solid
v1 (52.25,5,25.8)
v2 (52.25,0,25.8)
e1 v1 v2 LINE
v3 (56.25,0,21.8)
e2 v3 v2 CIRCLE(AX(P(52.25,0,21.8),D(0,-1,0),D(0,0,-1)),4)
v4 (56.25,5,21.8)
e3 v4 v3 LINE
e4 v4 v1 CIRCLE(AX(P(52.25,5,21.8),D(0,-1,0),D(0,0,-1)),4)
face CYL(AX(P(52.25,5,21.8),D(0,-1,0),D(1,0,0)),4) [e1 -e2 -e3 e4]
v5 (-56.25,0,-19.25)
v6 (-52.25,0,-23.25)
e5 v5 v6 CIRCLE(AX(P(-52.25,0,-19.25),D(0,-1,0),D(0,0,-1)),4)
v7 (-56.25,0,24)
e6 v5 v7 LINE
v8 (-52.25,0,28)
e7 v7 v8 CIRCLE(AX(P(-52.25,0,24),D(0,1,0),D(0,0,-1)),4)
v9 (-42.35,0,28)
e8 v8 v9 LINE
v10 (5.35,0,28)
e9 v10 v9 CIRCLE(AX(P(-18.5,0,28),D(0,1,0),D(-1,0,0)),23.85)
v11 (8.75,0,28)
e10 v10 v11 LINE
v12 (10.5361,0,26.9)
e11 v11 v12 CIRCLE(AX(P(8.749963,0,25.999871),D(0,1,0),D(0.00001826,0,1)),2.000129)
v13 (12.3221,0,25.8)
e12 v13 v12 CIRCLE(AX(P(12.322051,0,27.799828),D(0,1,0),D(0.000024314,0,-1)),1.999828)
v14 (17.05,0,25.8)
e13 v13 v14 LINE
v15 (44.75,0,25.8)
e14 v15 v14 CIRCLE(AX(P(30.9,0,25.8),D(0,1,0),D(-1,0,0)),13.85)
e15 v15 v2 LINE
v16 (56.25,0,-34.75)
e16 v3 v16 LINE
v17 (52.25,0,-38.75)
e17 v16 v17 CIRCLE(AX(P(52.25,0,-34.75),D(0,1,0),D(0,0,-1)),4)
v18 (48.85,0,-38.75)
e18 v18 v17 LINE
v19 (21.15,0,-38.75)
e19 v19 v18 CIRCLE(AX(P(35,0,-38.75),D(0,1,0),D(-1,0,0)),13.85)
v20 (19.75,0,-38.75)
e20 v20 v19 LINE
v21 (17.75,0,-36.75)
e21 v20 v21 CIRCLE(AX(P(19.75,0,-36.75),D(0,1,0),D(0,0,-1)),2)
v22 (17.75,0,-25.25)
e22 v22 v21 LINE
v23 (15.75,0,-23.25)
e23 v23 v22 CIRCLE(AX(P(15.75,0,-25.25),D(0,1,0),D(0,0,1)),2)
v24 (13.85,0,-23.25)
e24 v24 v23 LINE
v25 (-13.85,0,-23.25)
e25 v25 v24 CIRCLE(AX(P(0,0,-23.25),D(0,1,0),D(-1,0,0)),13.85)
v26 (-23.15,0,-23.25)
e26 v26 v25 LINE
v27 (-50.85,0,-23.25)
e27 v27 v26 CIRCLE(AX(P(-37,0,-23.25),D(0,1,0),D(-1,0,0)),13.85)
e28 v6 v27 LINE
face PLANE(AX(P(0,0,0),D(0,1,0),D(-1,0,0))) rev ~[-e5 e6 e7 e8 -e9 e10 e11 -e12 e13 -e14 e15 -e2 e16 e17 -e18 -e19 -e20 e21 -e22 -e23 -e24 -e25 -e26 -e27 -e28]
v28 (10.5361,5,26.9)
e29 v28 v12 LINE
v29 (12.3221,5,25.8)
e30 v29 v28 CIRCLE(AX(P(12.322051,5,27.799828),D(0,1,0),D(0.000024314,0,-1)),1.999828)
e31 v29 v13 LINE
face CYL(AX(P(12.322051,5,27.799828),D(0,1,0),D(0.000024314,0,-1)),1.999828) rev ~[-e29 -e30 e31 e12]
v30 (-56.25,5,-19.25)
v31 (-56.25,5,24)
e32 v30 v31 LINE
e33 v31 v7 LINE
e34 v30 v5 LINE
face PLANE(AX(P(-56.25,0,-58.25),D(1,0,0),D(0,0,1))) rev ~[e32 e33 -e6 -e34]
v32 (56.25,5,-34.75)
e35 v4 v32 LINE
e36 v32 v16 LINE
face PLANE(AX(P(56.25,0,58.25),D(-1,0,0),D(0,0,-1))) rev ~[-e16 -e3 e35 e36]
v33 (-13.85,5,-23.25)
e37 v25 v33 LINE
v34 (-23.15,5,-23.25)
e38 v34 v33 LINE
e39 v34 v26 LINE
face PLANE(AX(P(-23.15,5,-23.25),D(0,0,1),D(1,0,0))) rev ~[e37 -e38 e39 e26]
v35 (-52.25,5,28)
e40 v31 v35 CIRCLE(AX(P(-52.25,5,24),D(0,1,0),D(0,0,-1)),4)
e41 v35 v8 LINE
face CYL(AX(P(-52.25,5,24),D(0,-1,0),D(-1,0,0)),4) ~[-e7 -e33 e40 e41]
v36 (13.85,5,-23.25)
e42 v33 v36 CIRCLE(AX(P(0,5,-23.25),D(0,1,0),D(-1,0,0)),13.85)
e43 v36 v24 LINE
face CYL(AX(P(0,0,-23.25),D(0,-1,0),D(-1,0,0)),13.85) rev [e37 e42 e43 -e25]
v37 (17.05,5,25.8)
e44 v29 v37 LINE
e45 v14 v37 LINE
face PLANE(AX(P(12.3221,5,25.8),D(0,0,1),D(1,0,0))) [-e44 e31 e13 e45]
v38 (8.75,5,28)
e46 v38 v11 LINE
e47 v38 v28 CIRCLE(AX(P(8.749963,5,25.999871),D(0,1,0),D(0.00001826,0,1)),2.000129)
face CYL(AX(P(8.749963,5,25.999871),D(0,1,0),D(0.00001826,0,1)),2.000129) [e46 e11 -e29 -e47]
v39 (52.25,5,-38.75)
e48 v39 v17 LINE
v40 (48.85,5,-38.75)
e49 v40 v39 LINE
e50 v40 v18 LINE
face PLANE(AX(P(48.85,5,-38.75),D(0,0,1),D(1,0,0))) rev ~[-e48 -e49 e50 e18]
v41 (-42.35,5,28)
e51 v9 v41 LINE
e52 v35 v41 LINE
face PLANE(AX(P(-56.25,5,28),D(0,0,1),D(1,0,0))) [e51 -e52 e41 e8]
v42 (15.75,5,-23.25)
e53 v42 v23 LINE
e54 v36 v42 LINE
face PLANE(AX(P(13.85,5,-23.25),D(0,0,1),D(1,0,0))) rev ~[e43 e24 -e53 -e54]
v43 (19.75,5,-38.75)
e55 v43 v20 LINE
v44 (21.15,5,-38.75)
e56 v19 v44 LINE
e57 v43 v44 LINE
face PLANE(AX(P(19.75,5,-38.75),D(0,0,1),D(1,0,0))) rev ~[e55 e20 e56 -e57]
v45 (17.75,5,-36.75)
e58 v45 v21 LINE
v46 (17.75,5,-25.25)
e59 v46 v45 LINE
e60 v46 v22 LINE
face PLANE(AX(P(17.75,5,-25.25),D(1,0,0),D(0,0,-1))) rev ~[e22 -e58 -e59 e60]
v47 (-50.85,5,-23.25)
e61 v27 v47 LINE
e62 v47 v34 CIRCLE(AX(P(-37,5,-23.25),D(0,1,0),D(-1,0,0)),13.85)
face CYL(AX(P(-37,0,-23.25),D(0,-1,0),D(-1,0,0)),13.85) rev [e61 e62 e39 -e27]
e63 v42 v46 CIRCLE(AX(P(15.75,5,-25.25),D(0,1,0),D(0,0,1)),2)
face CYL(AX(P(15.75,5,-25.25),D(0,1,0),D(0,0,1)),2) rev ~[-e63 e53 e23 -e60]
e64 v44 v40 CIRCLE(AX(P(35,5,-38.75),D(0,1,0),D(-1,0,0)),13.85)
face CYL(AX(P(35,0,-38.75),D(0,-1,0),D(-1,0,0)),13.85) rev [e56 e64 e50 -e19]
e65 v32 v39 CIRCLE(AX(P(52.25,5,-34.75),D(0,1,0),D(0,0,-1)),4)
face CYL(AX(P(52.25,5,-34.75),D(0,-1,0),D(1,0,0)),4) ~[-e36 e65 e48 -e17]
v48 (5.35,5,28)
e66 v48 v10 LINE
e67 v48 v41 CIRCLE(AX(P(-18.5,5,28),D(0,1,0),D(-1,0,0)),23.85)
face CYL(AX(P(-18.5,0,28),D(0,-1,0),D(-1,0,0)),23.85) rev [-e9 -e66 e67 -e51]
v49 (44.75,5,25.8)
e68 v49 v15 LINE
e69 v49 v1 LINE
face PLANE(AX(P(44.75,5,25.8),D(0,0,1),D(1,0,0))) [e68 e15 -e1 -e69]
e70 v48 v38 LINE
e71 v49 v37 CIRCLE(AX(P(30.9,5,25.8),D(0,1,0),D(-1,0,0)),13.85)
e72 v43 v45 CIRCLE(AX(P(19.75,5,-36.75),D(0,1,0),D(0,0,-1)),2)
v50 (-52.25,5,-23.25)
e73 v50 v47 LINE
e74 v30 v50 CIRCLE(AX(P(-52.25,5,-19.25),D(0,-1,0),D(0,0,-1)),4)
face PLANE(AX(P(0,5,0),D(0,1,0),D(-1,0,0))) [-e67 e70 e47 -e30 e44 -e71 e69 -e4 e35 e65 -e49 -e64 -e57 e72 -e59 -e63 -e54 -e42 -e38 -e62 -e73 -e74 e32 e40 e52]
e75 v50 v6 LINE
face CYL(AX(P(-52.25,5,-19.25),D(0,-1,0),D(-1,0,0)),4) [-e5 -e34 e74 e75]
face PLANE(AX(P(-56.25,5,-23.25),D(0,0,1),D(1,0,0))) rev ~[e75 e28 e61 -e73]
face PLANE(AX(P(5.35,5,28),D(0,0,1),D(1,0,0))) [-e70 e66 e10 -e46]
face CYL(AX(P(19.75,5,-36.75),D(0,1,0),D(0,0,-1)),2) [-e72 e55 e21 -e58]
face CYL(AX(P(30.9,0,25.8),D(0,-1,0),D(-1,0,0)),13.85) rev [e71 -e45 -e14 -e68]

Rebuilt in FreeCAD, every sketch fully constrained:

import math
import FreeCAD as App
import Part
import Sketcher
from FreeCAD import Vector


def edges_at(feature, points):
    """Names of the edges that pass closest to the given points."""
    edges = feature.Shape.Edges
    near = lambda p: min(range(len(edges)), key=lambda i: edges[i].distToShape(Part.Vertex(*p))[0])
    return sorted({f"Edge{near(p) + 1}" for p in points})

doc = App.newDocument("Part")
body = doc.addObject("PartDesign::Body", "Body")

# Sketch on XZ plane
sketch1 = doc.addObject("Sketcher::SketchObject", "Sketch")
body.addObject(sketch1)
sketch1.AttachmentSupport = (doc.XZ_Plane, [""])
sketch1.MapMode = "FlatFace"
sketch1.addGeometry(Part.LineSegment(Vector(-56.25, -58.25, 0), Vector(-56.25, 58.25, 0)), False)
sketch1.addGeometry(Part.LineSegment(Vector(-56.25, 58.25, 0), Vector(56.25, 58.25, 0)), False)
sketch1.addGeometry(Part.LineSegment(Vector(56.25, 58.25, 0), Vector(56.25, -58.25, 0)), False)
sketch1.addGeometry(Part.LineSegment(Vector(56.25, -58.25, 0), Vector(-56.25, -58.25, 0)), False)
sketch1.addGeometry(Part.Circle(Vector(35, -38.75, 0), Vector(0, 0, 1), 13.85), False)
sketch1.addGeometry(Part.Circle(Vector(0, -23.25, 0), Vector(0, 0, 1), 13.85), False)
sketch1.addGeometry(Part.Circle(Vector(-37, -23.25, 0), Vector(0, 0, 1), 13.85), False)
sketch1.addGeometry(Part.Circle(Vector(30.9, 25.8, 0), Vector(0, 0, 1), 13.85), False)
sketch1.addGeometry(Part.Circle(Vector(-18.5, 28, 0), Vector(0, 0, 1), 23.85), False)
sketch1.addConstraint(Sketcher.Constraint("Coincident", 0, 2, 1, 1))
sketch1.addConstraint(Sketcher.Constraint("Coincident", 1, 2, 2, 1))
sketch1.addConstraint(Sketcher.Constraint("Coincident", 2, 2, 3, 1))
sketch1.addConstraint(Sketcher.Constraint("Coincident", 3, 2, 0, 1))
sketch1.addConstraint(Sketcher.Constraint("Vertical", 0))
sketch1.addConstraint(Sketcher.Constraint("Horizontal", 1))
sketch1.addConstraint(Sketcher.Constraint("Vertical", 2))
sketch1.addConstraint(Sketcher.Constraint("Horizontal", 3))
sketch1.addConstraint(Sketcher.Constraint("Equal", 4, 5))
sketch1.addConstraint(Sketcher.Constraint("Equal", 5, 6))
sketch1.addConstraint(Sketcher.Constraint("Equal", 6, 7))
sketch1.addConstraint(Sketcher.Constraint("Symmetric", 0, 2, 2, 2, -1, 1))
sketch1.addConstraint(Sketcher.Constraint("PointOnObject", 5, 3, -2))
sketch1.addConstraint(Sketcher.Constraint("Horizontal", 5, 3, 6, 3))
sketch1.addConstraint(Sketcher.Constraint("Diameter", 4, 27.7))
sketch1.addConstraint(Sketcher.Constraint("Diameter", 8, 47.7))
sketch1.addConstraint(Sketcher.Constraint("DistanceX", 1, 1, 1, 2, 112.5))
sketch1.addConstraint(Sketcher.Constraint("DistanceY", 0, 1, 0, 2, 116.5))
sketch1.addConstraint(Sketcher.Constraint("DistanceX", -1, 1, 4, 3, 35.0))
sketch1.addConstraint(Sketcher.Constraint("DistanceX", 6, 3, -1, 1, 37.0))
sketch1.addConstraint(Sketcher.Constraint("DistanceY", -1, 1, 8, 3, 28.0))
sketch1.addConstraint(Sketcher.Constraint("DistanceY", 2, 2, 5, 3, 35.0))
sketch1.addConstraint(Sketcher.Constraint("DistanceX", -1, 1, 7, 3, 30.9))
sketch1.addConstraint(Sketcher.Constraint("DistanceY", -1, 1, 7, 3, 25.8))
sketch1.addConstraint(Sketcher.Constraint("DistanceX", 8, 3, -1, 1, 18.5))
sketch1.addConstraint(Sketcher.Constraint("DistanceY", 2, 2, 4, 3, 19.5))
pad1 = doc.addObject("PartDesign::Pad", "Pad")
body.addObject(pad1)
pad1.Profile = sketch1
pad1.Length = 5
pad1.Reversed = True

# Sketch on XZ plane
sketch2 = doc.addObject("Sketcher::SketchObject", "Sketch001")
body.addObject(sketch2)
sketch2.AttachmentSupport = (doc.XZ_Plane, [""])
sketch2.MapMode = "FlatFace"
sketch2.AttachmentOffset = App.Placement(Vector(0, 0, -5), App.Rotation())
sketch2.addGeometry(Part.LineSegment(Vector(8.75, 28, 0), Vector(5.35, 28, 0)), False)
sketch2.addGeometry(Part.ArcOfCircle(Part.Circle(Vector(-18.5, 28, 0), Vector(0, 0, 1), 23.85), math.radians(0), math.radians(180)), False)
sketch2.addGeometry(Part.LineSegment(Vector(-42.35, 28, 0), Vector(-56.25, 28, 0)), False)
sketch2.addGeometry(Part.LineSegment(Vector(-56.25, 28, 0), Vector(-56.25, 58.25, 0)), False)
sketch2.addGeometry(Part.LineSegment(Vector(-56.25, 58.25, 0), Vector(56.25, 58.25, 0)), False)
sketch2.addGeometry(Part.LineSegment(Vector(56.25, 58.25, 0), Vector(56.25, 25.8, 0)), False)
sketch2.addGeometry(Part.LineSegment(Vector(56.25, 25.8, 0), Vector(44.75, 25.8, 0)), False)
sketch2.addGeometry(Part.ArcOfCircle(Part.Circle(Vector(30.9, 25.8, 0), Vector(0, 0, 1), 13.85), math.radians(0), math.radians(180)), False)
sketch2.addGeometry(Part.LineSegment(Vector(17.05, 25.8, 0), Vector(12.3221, 25.8, 0)), False)
sketch2.addGeometry(Part.ArcOfCircle(Part.Circle(Vector(12.3221, 27.8, 0), Vector(0, 0, 1), 2), math.radians(-153.25558), math.radians(-90)), False)
sketch2.addGeometry(Part.ArcOfCircle(Part.Circle(Vector(8.75, 26, 0), Vector(0, 0, 1), 2), math.radians(26.743131), math.radians(90)), False)
sketch2.addConstraint(Sketcher.Constraint("Coincident", 0, 2, 1, 1))
sketch2.addConstraint(Sketcher.Constraint("Coincident", 1, 2, 2, 1))
sketch2.addConstraint(Sketcher.Constraint("Coincident", 2, 2, 3, 1))
sketch2.addConstraint(Sketcher.Constraint("Coincident", 3, 2, 4, 1))
sketch2.addConstraint(Sketcher.Constraint("Coincident", 4, 2, 5, 1))
sketch2.addConstraint(Sketcher.Constraint("Coincident", 5, 2, 6, 1))
sketch2.addConstraint(Sketcher.Constraint("Coincident", 6, 2, 7, 1))
sketch2.addConstraint(Sketcher.Constraint("Coincident", 7, 2, 8, 1))
sketch2.addConstraint(Sketcher.Constraint("Tangent", 8, 2, 9, 2))
sketch2.addConstraint(Sketcher.Constraint("Tangent", 9, 1, 10, 1))
sketch2.addConstraint(Sketcher.Constraint("Tangent", 10, 2, 0, 1))
sketch2.addConstraint(Sketcher.Constraint("Horizontal", 0))
sketch2.addConstraint(Sketcher.Constraint("Horizontal", 2))
sketch2.addConstraint(Sketcher.Constraint("Vertical", 3))
sketch2.addConstraint(Sketcher.Constraint("Horizontal", 4))
sketch2.addConstraint(Sketcher.Constraint("Vertical", 5))
sketch2.addConstraint(Sketcher.Constraint("Horizontal", 6))
sketch2.addConstraint(Sketcher.Constraint("Horizontal", 8))
sketch2.addConstraint(Sketcher.Constraint("Equal", 9, 10))
sketch2.addConstraint(Sketcher.Constraint("Horizontal", 1, 3, 0, 2))
sketch2.addConstraint(Sketcher.Constraint("Horizontal", 0, 2, 1, 2))
sketch2.addConstraint(Sketcher.Constraint("Horizontal", 7, 3, 5, 2))
sketch2.addConstraint(Sketcher.Constraint("Horizontal", 6, 2, 7, 2))
sketch2.addConstraint(Sketcher.Constraint("Radius", 9, 2.0))
sketch2.addConstraint(Sketcher.Constraint("Radius", 1, 23.85))
sketch2.addConstraint(Sketcher.Constraint("Radius", 7, 13.85))
sketch2.addConstraint(Sketcher.Constraint("DistanceX", 0, 2, 0, 1, 3.4))
sketch2.addConstraint(Sketcher.Constraint("DistanceX", 2, 2, 2, 1, 13.9))
sketch2.addConstraint(Sketcher.Constraint("DistanceX", 4, 1, 4, 2, 112.5))
sketch2.addConstraint(Sketcher.Constraint("DistanceX", 6, 2, 6, 1, 11.5))
sketch2.addConstraint(Sketcher.Constraint("DistanceY", -1, 1, 1, 3, 28.0))
sketch2.addConstraint(Sketcher.Constraint("DistanceY", 3, 1, 3, 2, 30.25))
sketch2.addConstraint(Sketcher.Constraint("DistanceY", 5, 2, 5, 1, 32.45))
sketch2.addConstraint(Sketcher.Constraint("DistanceX", 1, 3, -1, 1, 18.5))
pocket1 = doc.addObject("PartDesign::Pocket", "Pocket")
body.addObject(pocket1)
pocket1.Profile = sketch2
pocket1.Length = 10
pocket1.Reversed = True

# Sketch on XZ plane
sketch3 = doc.addObject("Sketcher::SketchObject", "Sketch002")
body.addObject(sketch3)
sketch3.AttachmentSupport = (doc.XZ_Plane, [""])
sketch3.MapMode = "FlatFace"
sketch3.AttachmentOffset = App.Placement(Vector(0, 0, -5), App.Rotation())
sketch3.addGeometry(Part.LineSegment(Vector(56.25, -58.25, 0), Vector(-56.25, -58.25, 0)), False)
sketch3.addGeometry(Part.LineSegment(Vector(-56.25, -58.25, 0), Vector(-56.25, -23.25, 0)), False)
sketch3.addGeometry(Part.LineSegment(Vector(-56.25, -23.25, 0), Vector(-50.85, -23.25, 0)), False)
sketch3.addGeometry(Part.ArcOfCircle(Part.Circle(Vector(-37, -23.25, 0), Vector(0, 0, 1), 13.85), math.radians(180), math.radians(360)), False)
sketch3.addGeometry(Part.LineSegment(Vector(-23.15, -23.25, 0), Vector(-13.85, -23.25, 0)), False)
sketch3.addGeometry(Part.ArcOfCircle(Part.Circle(Vector(0, -23.25, 0), Vector(0, 0, 1), 13.85), math.radians(180), math.radians(360)), False)
sketch3.addGeometry(Part.LineSegment(Vector(13.85, -23.25, 0), Vector(15.75, -23.25, 0)), False)
sketch3.addGeometry(Part.ArcOfCircle(Part.Circle(Vector(15.75, -25.25, 0), Vector(0, 0, 1), 2), math.radians(0), math.radians(90)), False)
sketch3.addGeometry(Part.LineSegment(Vector(17.75, -25.25, 0), Vector(17.75, -36.75, 0)), False)
sketch3.addGeometry(Part.ArcOfCircle(Part.Circle(Vector(19.75, -36.75, 0), Vector(0, 0, 1), 2), math.radians(180), math.radians(270)), False)
sketch3.addGeometry(Part.LineSegment(Vector(19.75, -38.75, 0), Vector(21.15, -38.75, 0)), False)
sketch3.addGeometry(Part.ArcOfCircle(Part.Circle(Vector(35, -38.75, 0), Vector(0, 0, 1), 13.85), math.radians(180), math.radians(360)), False)
sketch3.addGeometry(Part.LineSegment(Vector(48.85, -38.75, 0), Vector(56.25, -38.75, 0)), False)
sketch3.addGeometry(Part.LineSegment(Vector(56.25, -38.75, 0), Vector(56.25, -58.25, 0)), False)
sketch3.addConstraint(Sketcher.Constraint("Coincident", 0, 2, 1, 1))
sketch3.addConstraint(Sketcher.Constraint("Coincident", 1, 2, 2, 1))
sketch3.addConstraint(Sketcher.Constraint("Coincident", 2, 2, 3, 1))
sketch3.addConstraint(Sketcher.Constraint("Coincident", 3, 2, 4, 1))
sketch3.addConstraint(Sketcher.Constraint("Coincident", 4, 2, 5, 1))
sketch3.addConstraint(Sketcher.Constraint("Coincident", 5, 2, 6, 1))
sketch3.addConstraint(Sketcher.Constraint("Tangent", 6, 2, 7, 2))
sketch3.addConstraint(Sketcher.Constraint("Tangent", 7, 1, 8, 1))
sketch3.addConstraint(Sketcher.Constraint("Tangent", 8, 2, 9, 1))
sketch3.addConstraint(Sketcher.Constraint("Tangent", 9, 2, 10, 1))
sketch3.addConstraint(Sketcher.Constraint("Coincident", 10, 2, 11, 1))
sketch3.addConstraint(Sketcher.Constraint("Coincident", 11, 2, 12, 1))
sketch3.addConstraint(Sketcher.Constraint("Coincident", 12, 2, 13, 1))
sketch3.addConstraint(Sketcher.Constraint("Coincident", 13, 2, 0, 1))
sketch3.addConstraint(Sketcher.Constraint("Horizontal", 0))
sketch3.addConstraint(Sketcher.Constraint("Vertical", 1))
sketch3.addConstraint(Sketcher.Constraint("Horizontal", 2))
sketch3.addConstraint(Sketcher.Constraint("Horizontal", 4))
sketch3.addConstraint(Sketcher.Constraint("Horizontal", 6))
sketch3.addConstraint(Sketcher.Constraint("Vertical", 8))
sketch3.addConstraint(Sketcher.Constraint("Horizontal", 10))
sketch3.addConstraint(Sketcher.Constraint("Horizontal", 12))
sketch3.addConstraint(Sketcher.Constraint("Vertical", 13))
sketch3.addConstraint(Sketcher.Constraint("Equal", 3, 5))
sketch3.addConstraint(Sketcher.Constraint("Equal", 7, 9))
sketch3.addConstraint(Sketcher.Constraint("Equal", 5, 11))
sketch3.addConstraint(Sketcher.Constraint("Symmetric", 4, 2, 5, 2, -2))
sketch3.addConstraint(Sketcher.Constraint("Horizontal", 3, 3, 5, 3))
sketch3.addConstraint(Sketcher.Constraint("Horizontal", 5, 3, 1, 2))
sketch3.addConstraint(Sketcher.Constraint("Horizontal", 2, 2, 3, 2))
sketch3.addConstraint(Sketcher.Constraint("Horizontal", 11, 3, 9, 2))
sketch3.addConstraint(Sketcher.Constraint("Horizontal", 10, 2, 11, 2))
sketch3.addConstraint(Sketcher.Constraint("Radius", 7, 2.0))
sketch3.addConstraint(Sketcher.Constraint("DistanceY", 1, 1, 1, 2, 35.0))
sketch3.addConstraint(Sketcher.Constraint("DistanceY", 13, 2, 13, 1, 19.5))
sketch3.addConstraint(Sketcher.Constraint("DistanceX", -1, 1, 11, 3, 35.0))
sketch3.addConstraint(Sketcher.Constraint("Radius", 3, 13.85))
sketch3.addConstraint(Sketcher.Constraint("DistanceX", 0, 2, 0, 1, 112.5))
sketch3.addConstraint(Sketcher.Constraint("DistanceX", 2, 1, 2, 2, 5.4))
sketch3.addConstraint(Sketcher.Constraint("DistanceX", 4, 1, 4, 2, 9.3))
sketch3.addConstraint(Sketcher.Constraint("DistanceX", 6, 1, 6, 2, 1.9))
sketch3.addConstraint(Sketcher.Constraint("DistanceY", 3, 3, -1, 1, 23.25))
pocket2 = doc.addObject("PartDesign::Pocket", "Pocket001")
body.addObject(pocket2)
pocket2.Profile = sketch3
pocket2.Type = "ThroughAll"
pocket2.Reversed = True
doc.recompute()

fillet = doc.addObject("PartDesign::Fillet", "Fillet")
body.addObject(fillet)
fillet.Base = (pocket2, edges_at(pocket2, [
    (-56.25, 2.5, -23.25),
    (-56.25, 2.5, 28),
    (56.25, 2.5, 25.8),
    (56.25, 2.5, -38.75),
]))
fillet.Radius = 4

doc.recompute()
